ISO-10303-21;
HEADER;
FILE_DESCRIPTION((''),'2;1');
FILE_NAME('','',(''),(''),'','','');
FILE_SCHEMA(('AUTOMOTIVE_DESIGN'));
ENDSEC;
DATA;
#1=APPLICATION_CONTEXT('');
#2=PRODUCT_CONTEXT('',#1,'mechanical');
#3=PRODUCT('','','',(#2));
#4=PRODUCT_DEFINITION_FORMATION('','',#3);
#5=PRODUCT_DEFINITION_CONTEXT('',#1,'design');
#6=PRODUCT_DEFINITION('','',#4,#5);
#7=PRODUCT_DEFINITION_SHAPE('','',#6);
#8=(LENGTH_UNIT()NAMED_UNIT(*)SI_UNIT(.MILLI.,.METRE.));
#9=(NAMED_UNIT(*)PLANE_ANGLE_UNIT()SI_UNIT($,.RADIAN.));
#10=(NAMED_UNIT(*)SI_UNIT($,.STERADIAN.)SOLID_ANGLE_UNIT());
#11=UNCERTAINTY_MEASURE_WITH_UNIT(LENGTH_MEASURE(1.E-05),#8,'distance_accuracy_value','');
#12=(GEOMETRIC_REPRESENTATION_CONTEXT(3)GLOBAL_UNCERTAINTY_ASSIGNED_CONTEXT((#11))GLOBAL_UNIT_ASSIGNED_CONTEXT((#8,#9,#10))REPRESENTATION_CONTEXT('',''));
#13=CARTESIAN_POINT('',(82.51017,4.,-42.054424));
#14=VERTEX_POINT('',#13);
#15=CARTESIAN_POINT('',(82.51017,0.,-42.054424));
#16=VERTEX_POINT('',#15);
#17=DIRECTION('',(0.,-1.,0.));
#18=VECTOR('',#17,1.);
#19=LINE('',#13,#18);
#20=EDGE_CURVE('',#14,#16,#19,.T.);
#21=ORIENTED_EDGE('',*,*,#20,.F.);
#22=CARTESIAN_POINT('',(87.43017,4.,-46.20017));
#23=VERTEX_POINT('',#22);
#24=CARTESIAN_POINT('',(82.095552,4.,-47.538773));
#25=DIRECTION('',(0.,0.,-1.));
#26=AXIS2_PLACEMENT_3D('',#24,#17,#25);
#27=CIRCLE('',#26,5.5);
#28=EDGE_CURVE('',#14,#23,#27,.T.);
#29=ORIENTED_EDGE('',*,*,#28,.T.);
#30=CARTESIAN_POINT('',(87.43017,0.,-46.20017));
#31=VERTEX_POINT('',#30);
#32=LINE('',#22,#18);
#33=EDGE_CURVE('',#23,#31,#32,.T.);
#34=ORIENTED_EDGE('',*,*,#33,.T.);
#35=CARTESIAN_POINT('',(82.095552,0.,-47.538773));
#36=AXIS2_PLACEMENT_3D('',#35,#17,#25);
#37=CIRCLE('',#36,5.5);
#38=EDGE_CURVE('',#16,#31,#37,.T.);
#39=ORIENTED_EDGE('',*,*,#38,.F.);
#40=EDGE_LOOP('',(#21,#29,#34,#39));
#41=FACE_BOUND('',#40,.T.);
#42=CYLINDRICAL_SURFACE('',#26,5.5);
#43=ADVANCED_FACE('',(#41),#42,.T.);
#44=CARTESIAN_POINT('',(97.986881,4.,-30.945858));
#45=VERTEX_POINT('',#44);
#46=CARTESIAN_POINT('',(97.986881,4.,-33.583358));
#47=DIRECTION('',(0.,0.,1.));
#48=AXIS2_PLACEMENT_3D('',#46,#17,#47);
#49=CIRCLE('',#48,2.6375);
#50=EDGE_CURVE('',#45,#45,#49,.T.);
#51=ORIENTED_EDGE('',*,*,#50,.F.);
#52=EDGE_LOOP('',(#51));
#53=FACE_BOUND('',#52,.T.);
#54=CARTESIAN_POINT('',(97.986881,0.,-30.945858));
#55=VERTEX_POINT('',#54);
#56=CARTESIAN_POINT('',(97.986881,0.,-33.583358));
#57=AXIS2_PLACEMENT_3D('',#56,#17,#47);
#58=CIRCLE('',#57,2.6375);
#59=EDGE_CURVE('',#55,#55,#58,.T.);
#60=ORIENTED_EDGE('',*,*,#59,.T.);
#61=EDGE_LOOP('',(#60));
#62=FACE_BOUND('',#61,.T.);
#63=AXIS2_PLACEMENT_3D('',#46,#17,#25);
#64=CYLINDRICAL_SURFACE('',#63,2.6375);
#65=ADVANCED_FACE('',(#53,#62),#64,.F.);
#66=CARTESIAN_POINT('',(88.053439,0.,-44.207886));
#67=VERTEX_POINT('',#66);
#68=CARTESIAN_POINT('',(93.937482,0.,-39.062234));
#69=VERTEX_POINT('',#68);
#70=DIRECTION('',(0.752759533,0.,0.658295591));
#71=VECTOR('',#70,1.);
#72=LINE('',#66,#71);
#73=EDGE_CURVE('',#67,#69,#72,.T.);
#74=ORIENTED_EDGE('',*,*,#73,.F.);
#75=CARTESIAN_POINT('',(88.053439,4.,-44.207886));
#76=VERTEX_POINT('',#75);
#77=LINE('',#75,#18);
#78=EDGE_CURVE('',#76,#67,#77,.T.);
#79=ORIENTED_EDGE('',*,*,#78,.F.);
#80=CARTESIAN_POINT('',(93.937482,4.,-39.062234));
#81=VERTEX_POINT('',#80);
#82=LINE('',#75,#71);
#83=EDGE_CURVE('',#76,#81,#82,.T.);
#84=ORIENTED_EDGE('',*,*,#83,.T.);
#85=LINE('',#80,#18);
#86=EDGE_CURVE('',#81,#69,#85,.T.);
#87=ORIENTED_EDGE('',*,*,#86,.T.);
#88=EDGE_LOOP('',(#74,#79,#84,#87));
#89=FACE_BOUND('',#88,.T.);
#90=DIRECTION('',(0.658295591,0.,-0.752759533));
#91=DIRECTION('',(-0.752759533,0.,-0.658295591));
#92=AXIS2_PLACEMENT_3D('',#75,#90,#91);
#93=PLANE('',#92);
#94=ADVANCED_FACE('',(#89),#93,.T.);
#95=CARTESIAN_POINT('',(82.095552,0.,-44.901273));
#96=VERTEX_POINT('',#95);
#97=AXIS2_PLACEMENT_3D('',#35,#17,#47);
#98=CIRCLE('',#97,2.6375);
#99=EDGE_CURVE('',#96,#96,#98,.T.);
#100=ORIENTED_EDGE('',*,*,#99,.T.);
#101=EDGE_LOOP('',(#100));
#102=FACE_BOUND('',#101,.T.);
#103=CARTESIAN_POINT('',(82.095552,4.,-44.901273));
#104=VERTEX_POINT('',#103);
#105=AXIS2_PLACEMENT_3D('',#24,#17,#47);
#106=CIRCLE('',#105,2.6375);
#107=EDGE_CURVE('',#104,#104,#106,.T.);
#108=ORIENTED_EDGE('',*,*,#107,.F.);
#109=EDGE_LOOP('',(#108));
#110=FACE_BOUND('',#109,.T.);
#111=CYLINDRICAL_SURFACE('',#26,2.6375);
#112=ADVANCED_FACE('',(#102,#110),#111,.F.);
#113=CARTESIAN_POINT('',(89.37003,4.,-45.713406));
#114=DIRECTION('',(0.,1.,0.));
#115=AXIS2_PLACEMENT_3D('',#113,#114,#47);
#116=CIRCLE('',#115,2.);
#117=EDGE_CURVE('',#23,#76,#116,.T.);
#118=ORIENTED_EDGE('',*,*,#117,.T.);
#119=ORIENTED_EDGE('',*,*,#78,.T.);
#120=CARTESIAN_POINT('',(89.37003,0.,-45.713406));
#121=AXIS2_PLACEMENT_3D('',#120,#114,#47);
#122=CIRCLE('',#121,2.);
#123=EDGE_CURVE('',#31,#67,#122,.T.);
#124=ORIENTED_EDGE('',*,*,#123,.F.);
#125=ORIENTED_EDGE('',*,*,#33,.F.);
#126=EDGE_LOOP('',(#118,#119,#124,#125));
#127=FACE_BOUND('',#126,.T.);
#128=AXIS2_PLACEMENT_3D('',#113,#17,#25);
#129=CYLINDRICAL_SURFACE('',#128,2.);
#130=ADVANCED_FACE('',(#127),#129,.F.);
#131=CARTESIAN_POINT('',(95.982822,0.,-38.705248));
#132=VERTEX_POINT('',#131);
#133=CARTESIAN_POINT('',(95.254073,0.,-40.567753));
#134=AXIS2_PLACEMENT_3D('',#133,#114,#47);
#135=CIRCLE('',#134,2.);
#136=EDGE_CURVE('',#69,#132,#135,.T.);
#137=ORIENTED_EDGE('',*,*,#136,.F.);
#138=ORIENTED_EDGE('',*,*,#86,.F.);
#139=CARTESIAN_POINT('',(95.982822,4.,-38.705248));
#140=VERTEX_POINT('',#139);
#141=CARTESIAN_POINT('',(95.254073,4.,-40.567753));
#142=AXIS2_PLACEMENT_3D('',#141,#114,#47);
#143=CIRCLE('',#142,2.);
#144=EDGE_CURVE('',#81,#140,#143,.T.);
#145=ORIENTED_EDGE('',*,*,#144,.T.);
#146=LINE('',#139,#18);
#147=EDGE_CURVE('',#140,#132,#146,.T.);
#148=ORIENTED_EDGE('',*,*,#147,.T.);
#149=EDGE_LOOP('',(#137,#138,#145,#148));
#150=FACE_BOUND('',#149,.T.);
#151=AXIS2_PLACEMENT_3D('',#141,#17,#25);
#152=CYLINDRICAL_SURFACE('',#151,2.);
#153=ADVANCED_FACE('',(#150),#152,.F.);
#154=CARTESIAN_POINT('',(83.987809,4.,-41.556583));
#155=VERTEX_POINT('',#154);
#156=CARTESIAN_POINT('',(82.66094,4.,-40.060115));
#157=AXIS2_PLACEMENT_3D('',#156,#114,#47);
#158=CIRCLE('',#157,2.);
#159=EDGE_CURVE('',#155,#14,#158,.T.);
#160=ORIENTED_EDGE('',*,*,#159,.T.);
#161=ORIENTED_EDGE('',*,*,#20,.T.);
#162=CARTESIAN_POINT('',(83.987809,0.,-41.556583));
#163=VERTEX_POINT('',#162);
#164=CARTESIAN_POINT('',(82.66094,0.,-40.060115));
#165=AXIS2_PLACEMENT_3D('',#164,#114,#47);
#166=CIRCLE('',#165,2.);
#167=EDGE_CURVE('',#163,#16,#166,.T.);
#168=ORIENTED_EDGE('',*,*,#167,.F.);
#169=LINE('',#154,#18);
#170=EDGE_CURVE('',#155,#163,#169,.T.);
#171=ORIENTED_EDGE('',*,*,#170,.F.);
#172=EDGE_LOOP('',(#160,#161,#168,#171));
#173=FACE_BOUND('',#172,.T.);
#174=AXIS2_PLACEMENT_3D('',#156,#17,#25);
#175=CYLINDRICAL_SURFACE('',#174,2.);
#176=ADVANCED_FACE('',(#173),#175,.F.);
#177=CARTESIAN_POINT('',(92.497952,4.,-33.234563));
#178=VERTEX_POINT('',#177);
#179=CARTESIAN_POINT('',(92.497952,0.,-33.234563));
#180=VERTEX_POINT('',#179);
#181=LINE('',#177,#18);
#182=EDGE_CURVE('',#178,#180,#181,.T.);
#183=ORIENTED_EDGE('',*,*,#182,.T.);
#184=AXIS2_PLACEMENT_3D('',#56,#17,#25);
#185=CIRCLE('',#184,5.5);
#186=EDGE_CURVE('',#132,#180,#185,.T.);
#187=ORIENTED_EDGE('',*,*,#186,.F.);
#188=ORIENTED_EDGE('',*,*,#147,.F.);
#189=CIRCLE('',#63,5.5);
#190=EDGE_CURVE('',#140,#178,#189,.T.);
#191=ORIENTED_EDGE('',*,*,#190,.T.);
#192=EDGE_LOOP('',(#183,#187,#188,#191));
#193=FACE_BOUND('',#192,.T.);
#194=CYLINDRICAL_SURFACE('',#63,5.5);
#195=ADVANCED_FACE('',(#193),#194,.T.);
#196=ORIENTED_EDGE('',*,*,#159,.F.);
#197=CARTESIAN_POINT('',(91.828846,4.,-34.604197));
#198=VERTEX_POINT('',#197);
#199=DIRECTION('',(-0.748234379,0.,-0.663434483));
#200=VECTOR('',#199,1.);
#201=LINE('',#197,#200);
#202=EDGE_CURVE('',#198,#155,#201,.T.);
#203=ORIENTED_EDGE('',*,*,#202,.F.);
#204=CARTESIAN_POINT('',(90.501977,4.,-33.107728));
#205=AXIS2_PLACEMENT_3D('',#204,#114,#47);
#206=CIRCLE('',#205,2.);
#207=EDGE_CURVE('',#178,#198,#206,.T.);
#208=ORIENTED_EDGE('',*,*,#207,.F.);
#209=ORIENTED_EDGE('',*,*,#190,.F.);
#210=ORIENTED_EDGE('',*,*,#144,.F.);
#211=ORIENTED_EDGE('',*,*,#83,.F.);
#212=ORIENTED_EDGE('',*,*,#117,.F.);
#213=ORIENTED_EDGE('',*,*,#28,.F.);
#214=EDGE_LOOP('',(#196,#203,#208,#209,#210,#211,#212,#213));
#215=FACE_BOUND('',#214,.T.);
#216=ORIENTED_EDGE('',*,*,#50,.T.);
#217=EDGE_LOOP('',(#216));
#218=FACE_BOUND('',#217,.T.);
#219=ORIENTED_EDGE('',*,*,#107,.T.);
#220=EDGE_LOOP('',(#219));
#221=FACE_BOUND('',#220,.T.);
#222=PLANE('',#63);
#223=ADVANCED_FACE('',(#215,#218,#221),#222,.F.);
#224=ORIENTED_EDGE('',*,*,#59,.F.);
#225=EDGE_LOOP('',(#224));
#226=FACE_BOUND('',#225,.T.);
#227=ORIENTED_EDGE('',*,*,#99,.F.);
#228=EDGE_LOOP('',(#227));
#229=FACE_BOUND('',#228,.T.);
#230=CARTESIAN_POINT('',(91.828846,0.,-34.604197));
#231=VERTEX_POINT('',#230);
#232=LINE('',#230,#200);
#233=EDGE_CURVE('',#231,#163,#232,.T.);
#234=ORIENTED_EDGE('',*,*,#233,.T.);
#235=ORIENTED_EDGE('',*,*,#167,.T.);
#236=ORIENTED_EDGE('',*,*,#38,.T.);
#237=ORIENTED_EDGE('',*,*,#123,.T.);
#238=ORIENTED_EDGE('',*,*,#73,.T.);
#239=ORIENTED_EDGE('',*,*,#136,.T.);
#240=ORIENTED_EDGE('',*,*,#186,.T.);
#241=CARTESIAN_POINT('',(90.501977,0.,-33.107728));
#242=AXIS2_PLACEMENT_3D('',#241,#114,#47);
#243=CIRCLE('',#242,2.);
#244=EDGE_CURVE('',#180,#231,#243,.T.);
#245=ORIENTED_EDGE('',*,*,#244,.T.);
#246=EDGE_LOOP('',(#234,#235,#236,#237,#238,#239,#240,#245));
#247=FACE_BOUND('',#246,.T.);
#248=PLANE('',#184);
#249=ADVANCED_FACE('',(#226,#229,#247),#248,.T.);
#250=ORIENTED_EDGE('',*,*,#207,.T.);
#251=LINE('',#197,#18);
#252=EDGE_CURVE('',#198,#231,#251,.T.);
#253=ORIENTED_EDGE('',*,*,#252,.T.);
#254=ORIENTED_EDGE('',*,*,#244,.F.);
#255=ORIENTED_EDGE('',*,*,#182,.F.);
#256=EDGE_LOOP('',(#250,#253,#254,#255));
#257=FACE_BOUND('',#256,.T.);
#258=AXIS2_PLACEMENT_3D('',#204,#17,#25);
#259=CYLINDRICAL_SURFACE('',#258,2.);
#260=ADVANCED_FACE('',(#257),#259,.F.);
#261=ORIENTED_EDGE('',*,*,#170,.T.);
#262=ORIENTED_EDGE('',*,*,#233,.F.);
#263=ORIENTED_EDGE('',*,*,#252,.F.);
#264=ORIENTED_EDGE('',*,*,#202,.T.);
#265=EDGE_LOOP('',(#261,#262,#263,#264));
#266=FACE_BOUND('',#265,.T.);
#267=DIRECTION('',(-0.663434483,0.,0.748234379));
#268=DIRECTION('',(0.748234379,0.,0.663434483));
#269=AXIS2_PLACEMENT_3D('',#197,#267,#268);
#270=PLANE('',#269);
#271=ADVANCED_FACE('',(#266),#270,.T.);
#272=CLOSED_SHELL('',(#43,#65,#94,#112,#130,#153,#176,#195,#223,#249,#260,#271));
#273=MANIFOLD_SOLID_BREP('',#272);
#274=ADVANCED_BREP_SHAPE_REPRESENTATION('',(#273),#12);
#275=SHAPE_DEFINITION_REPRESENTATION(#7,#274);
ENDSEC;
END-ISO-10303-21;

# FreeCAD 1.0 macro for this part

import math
import FreeCAD as App
import Part
import Sketcher
from FreeCAD import Vector
Q = App.Units.Quantity

doc = App.newDocument("Part")
body = doc.addObject("PartDesign::Body", "Body")

# Sketch on XZ plane
sketch1 = body.newObject("Sketcher::SketchObject", "Sketch")
sketch1.AttachmentSupport = (doc.getObject("XZ_Plane"), [""])
sketch1.MapMode = "FlatFace"
sketch1.addGeometry(Part.LineSegment(Vector(91.8, -34.6, 0), Vector(84, -41.6, 0)), False)
sketch1.addGeometry(Part.ArcOfCircle(Part.Circle(Vector(82.7, -40.1, 0), Vector(0, 0, 1), 2), math.radians(-94), math.radians(-48)), False)
sketch1.addGeometry(Part.ArcOfCircle(Part.Circle(Vector(82.1, -47.5, 0), Vector(0, 0, 1), 5.5), math.radians(86), math.radians(374)), False)
sketch1.addGeometry(Part.ArcOfCircle(Part.Circle(Vector(89.4, -45.7, 0), Vector(0, 0, 1), 2), math.radians(131), math.radians(194)), False)
sketch1.addGeometry(Part.LineSegment(Vector(88.1, -44.2, 0), Vector(93.9, -39.1, 0)), False)
sketch1.addGeometry(Part.ArcOfCircle(Part.Circle(Vector(95.3, -40.6, 0), Vector(0, 0, 1), 2), math.radians(69), math.radians(131)), False)
sketch1.addGeometry(Part.ArcOfCircle(Part.Circle(Vector(98, -33.6, 0), Vector(0, 0, 1), 5.5), math.radians(-111), math.radians(176)), False)
sketch1.addGeometry(Part.ArcOfCircle(Part.Circle(Vector(90.5, -33.1, 0), Vector(0, 0, 1), 2), math.radians(-48), math.radians(-4)), False)
sketch1.addGeometry(Part.Circle(Vector(82.1, -47.5, 0), Vector(0, 0, 1), 2.6), False)
sketch1.addGeometry(Part.Circle(Vector(98, -33.6, 0), Vector(0, 0, 1), 2.6), False)
sketch1.addConstraint(Sketcher.Constraint("Tangent", 0, 2, 1, 2))
sketch1.addConstraint(Sketcher.Constraint("Tangent", 1, 1, 2, 1))
sketch1.addConstraint(Sketcher.Constraint("Tangent", 2, 2, 3, 2))
sketch1.addConstraint(Sketcher.Constraint("Tangent", 3, 1, 4, 1))
sketch1.addConstraint(Sketcher.Constraint("Tangent", 4, 2, 5, 2))
sketch1.addConstraint(Sketcher.Constraint("Tangent", 5, 1, 6, 1))
sketch1.addConstraint(Sketcher.Constraint("Tangent", 6, 2, 7, 2))
sketch1.addConstraint(Sketcher.Constraint("Tangent", 7, 1, 0, 1))
sketch1.addConstraint(Sketcher.Constraint("Coincident", 8, 3, 2, 3))
sketch1.addConstraint(Sketcher.Constraint("Coincident", 9, 3, 6, 3))
sketch1.addConstraint(Sketcher.Constraint("Equal", 1, 3))
sketch1.addConstraint(Sketcher.Constraint("Equal", 3, 5))
sketch1.addConstraint(Sketcher.Constraint("Equal", 2, 6))
sketch1.addConstraint(Sketcher.Constraint("Equal", 5, 7))
sketch1.addConstraint(Sketcher.Constraint("Equal", 8, 9))
sketch1.addConstraint(Sketcher.Constraint("Radius", 1, Q("2 mm")))
sketch1.addConstraint(Sketcher.Constraint("Radius", 2, Q("5.5 mm")))
sketch1.addConstraint(Sketcher.Constraint("Diameter", 8, Q("5.275 mm")))
sketch1.addConstraint(Sketcher.Constraint("Angle", 4, Q("41.170014 deg")))
sketch1.addConstraint(Sketcher.Constraint("DistanceX", 1, 1, 2, 2, Q("4.92 mm")))
sketch1.addConstraint(Sketcher.Constraint("DistanceX", 4, 2, 6, 3, Q("4.049399 mm")))
sketch1.addConstraint(Sketcher.Constraint("Distance", 4, Q("7.81663 mm")))
sketch1.addConstraint(Sketcher.Constraint("DistanceX", -1, 1, 1, 3, Q("82.66094 mm")))
sketch1.addConstraint(Sketcher.Constraint("DistanceY", 6, 3, -1, 1, Q("33.583358 mm")))
sketch1.addConstraint(Sketcher.Constraint("DistanceX", -1, 1, 0, 2, Q("83.987809 mm")))
sketch1.addConstraint(Sketcher.Constraint("DistanceX", -1, 1, 1, 1, Q("82.51017 mm")))
pad1 = body.newObject("PartDesign::Pad", "Pad")
pad1.Profile = sketch1
pad1.Length = 4
pad1.Reversed = True

doc.recompute()
